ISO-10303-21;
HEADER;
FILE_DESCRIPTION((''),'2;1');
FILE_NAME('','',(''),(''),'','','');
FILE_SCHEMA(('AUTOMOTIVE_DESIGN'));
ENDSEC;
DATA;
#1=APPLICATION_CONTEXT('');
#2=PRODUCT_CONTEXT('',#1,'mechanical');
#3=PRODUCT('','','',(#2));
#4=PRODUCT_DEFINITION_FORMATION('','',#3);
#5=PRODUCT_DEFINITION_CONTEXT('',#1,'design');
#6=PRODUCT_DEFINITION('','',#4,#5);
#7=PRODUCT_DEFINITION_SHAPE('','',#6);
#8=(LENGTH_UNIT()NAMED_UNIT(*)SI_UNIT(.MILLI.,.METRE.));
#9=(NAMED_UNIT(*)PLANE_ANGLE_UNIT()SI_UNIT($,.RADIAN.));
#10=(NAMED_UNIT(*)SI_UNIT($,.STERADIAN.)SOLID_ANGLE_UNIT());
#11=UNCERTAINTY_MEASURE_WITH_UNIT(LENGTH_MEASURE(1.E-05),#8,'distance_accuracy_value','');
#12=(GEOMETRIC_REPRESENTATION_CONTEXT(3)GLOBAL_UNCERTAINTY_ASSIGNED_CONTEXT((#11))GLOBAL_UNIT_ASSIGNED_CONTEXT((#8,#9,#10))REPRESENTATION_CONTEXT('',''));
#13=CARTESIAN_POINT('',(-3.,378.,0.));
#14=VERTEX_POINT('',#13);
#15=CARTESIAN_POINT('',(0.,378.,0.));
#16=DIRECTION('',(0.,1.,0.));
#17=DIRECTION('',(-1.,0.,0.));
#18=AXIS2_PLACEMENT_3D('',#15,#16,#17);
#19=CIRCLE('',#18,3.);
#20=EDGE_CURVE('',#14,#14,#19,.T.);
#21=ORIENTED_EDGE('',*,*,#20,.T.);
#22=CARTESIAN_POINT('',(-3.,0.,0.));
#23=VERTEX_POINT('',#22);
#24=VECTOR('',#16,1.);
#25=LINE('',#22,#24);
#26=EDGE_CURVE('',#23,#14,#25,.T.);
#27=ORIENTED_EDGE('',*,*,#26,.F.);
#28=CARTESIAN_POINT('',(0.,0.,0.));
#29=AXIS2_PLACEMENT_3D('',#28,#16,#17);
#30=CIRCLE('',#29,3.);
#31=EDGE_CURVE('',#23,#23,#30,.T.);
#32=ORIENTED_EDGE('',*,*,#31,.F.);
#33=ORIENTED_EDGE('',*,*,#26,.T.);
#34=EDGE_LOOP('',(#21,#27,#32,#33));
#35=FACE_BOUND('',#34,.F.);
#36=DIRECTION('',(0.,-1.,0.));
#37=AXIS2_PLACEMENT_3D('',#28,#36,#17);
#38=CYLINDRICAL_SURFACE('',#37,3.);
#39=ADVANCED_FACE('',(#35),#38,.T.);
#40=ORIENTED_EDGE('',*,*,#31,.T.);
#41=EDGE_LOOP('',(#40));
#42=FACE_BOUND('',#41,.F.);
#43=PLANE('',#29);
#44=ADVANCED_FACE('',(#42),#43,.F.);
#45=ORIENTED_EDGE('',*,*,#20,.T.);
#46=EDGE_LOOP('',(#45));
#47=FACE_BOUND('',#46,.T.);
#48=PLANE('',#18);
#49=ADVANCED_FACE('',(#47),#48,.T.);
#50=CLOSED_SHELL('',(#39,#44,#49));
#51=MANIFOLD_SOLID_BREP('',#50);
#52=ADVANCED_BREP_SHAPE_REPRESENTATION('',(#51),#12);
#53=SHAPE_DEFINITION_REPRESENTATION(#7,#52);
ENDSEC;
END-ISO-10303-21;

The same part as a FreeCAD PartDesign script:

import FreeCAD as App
import Part
import Sketcher

V = App.Vector

doc = App.newDocument("Part")
body = doc.addObject("PartDesign::Body", "Body")

sketch1 = body.newObject("Sketcher::SketchObject", "Sketch")
sketch1.AttachmentSupport = (doc.getObject("XZ_Plane"), [""])
sketch1.MapMode = "FlatFace"
sketch1.addGeometry(Part.Circle(V(0, 0, 0), V(0, 0, 1), 3), False)
sketch1.addConstraint([
    Sketcher.Constraint("Coincident", 0, 3, -1, 1),
    Sketcher.Constraint("Diameter", 0, 6.0),
])
pad1 = body.newObject("PartDesign::Pad", "Pad")
pad1.Profile = sketch1
pad1.Length = 378
pad1.Reversed = True

doc.recompute()
